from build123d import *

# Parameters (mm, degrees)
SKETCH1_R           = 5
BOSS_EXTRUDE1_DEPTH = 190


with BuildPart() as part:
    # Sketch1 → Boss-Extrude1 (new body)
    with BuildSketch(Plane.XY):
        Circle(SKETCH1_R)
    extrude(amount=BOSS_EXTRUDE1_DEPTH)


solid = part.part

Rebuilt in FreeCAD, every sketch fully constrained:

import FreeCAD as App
import Part
import Sketcher

doc = App.newDocument("Part")
body = doc.addObject("PartDesign::Body", "Body")

# Sketch on XY plane
sketch1 = doc.addObject("Sketcher::SketchObject", "Sketch")
body.addObject(sketch1)
sketch1.AttachmentSupport = (doc.XY_Plane, [""])
sketch1.MapMode = "FlatFace"
sketch1.addGeometry(Part.Circle(App.Vector(0, 0, 0), App.Vector(0, 0, 1), 5), False)
sketch1.addConstraint(Sketcher.Constraint("Coincident", 0, 3, -1, 1))
sketch1.addConstraint(Sketcher.Constraint("Diameter", 0, 10.0))
pad1 = doc.addObject("PartDesign::Pad", "Pad")
body.addObject(pad1)
pad1.Profile = sketch1
pad1.Length = 190

doc.recompute()
